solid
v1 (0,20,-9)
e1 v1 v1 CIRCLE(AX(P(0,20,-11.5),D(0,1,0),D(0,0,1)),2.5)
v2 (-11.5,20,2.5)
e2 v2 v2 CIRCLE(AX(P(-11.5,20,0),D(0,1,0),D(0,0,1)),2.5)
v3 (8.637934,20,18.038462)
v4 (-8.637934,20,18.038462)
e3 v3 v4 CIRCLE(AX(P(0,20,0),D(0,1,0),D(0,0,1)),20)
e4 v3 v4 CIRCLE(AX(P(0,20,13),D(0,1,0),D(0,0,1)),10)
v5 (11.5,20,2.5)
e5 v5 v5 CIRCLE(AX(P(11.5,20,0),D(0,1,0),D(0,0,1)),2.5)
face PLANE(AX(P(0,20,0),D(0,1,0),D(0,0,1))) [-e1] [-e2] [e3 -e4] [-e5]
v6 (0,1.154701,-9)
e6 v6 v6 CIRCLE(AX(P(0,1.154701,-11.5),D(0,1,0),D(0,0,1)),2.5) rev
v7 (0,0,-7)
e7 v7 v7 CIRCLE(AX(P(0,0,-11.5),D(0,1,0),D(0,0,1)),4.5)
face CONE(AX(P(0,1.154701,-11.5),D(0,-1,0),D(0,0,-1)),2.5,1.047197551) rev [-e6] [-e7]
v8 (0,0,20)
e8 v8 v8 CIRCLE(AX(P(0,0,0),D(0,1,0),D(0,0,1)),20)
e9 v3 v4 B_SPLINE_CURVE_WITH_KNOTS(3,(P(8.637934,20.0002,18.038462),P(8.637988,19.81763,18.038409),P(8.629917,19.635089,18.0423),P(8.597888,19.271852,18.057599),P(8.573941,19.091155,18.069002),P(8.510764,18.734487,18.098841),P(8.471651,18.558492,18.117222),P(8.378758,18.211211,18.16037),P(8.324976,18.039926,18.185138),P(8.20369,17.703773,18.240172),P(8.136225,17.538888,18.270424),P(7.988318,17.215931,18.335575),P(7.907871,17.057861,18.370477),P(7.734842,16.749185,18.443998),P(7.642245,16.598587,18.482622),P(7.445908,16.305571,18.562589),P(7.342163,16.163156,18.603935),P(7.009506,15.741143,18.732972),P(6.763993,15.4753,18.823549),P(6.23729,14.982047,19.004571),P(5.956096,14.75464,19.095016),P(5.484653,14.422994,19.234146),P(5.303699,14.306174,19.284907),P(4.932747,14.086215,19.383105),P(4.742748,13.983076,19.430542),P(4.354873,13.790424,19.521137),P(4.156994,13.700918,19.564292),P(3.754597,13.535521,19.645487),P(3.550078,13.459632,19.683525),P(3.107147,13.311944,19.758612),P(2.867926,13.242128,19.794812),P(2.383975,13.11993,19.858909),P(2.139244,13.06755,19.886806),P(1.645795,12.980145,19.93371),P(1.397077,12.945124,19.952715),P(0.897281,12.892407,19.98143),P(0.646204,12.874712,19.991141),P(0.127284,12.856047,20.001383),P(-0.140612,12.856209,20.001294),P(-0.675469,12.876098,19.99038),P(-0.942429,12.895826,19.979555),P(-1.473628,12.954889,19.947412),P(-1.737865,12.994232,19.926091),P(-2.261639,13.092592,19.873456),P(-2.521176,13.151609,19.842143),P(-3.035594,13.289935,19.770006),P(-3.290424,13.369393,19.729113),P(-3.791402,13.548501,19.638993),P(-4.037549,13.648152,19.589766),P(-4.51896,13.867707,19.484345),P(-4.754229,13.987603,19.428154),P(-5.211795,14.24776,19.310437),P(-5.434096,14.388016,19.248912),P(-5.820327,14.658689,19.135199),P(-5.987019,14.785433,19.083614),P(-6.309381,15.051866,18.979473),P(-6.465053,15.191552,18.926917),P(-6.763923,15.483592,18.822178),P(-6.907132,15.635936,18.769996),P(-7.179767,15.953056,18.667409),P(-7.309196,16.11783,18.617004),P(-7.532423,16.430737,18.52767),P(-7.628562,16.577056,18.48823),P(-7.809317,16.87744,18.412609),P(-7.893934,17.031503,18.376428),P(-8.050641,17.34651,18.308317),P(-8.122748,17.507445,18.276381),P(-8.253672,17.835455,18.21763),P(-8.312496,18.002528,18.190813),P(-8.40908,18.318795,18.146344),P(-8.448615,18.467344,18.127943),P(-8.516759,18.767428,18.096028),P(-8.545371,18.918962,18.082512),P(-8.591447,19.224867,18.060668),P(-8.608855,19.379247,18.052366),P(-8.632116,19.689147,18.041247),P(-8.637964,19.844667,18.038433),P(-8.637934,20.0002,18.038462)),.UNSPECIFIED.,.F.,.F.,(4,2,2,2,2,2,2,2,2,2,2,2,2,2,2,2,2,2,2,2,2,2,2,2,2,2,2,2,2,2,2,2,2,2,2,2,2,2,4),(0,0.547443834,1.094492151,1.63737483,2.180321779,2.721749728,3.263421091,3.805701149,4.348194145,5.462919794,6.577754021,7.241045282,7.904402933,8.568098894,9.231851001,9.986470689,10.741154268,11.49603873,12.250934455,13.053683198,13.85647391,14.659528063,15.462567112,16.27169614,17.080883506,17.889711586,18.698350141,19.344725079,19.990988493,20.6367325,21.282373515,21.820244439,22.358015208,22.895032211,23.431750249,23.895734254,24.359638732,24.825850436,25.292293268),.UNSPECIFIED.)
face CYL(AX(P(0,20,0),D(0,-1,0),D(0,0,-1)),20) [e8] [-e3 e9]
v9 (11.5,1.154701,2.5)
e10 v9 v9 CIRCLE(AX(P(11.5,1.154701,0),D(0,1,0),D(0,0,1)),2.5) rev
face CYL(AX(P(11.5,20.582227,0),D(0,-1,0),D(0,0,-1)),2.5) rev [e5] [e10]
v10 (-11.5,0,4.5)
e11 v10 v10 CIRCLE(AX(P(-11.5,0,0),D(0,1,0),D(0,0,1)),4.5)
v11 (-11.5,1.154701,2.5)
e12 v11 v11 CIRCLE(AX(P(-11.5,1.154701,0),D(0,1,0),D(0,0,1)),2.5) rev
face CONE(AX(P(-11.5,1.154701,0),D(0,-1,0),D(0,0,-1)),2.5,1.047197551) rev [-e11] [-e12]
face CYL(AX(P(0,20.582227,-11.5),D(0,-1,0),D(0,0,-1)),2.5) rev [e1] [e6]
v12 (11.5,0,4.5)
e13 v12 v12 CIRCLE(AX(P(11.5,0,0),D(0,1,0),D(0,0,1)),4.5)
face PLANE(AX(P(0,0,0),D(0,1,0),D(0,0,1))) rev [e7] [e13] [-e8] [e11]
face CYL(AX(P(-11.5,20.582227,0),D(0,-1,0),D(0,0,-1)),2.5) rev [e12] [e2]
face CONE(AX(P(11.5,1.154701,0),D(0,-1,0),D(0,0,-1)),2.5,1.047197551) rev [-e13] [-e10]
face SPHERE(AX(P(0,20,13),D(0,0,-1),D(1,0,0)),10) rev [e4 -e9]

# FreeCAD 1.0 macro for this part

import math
import FreeCAD as App
import Part
import Sketcher


def edges_at(feature, points):
    """Names of the edges that pass closest to the given points."""
    edges = feature.Shape.Edges
    near = lambda p: min(range(len(edges)), key=lambda i: edges[i].distToShape(Part.Vertex(*p))[0])
    return sorted({f"Edge{near(p) + 1}" for p in points})

doc = App.newDocument("Part")
body = doc.addObject("PartDesign::Body", "Body")

# Sketch on XZ plane
sketch1 = doc.addObject("Sketcher::SketchObject", "Sketch")
body.addObject(sketch1)
sketch1.AttachmentSupport = (doc.XZ_Plane, [""])
sketch1.MapMode = "FlatFace"
sketch1.addGeometry(Part.Circle(App.Vector(0, 0, 0), App.Vector(0, 0, 1), 20), False)
sketch1.addConstraint([
    Sketcher.Constraint("Coincident", 0, 3, -1, 1),
    Sketcher.Constraint("Diameter", 0, 40.0),
])
pad1 = doc.addObject("PartDesign::Pad", "Pad")
body.addObject(pad1)
pad1.Profile = sketch1
pad1.Length = 20
pad1.Reversed = True

# Sketch on XZ plane
sketch2 = doc.addObject("Sketcher::SketchObject", "Sketch001")
body.addObject(sketch2)
sketch2.AttachmentSupport = (doc.XZ_Plane, [""])
sketch2.MapMode = "FlatFace"
sketch2.AttachmentOffset = App.Placement(App.Vector(0, 0, -20), App.Rotation())
sketch2.addGeometry([
    Part.LineSegment(App.Vector(0, 23, 0), App.Vector(0, 3, 0)),
    Part.ArcOfCircle(Part.Circle(App.Vector(0, 13, 0), App.Vector(0, 0, 1), 10), math.radians(90), math.radians(270)),
], False)
sketch2.addConstraint([
    Sketcher.Constraint("Coincident", 0, 1, 1, 1),
    Sketcher.Constraint("Coincident", 1, 2, 0, 2),
    Sketcher.Constraint("Vertical", 0),
    Sketcher.Constraint("PointOnObject", 1, 3, -2),
    Sketcher.Constraint("PointOnObject", 0, 1, -2),
    Sketcher.Constraint("Radius", 1, 10.0),
    Sketcher.Constraint("DistanceY", -1, 1, 1, 3, 13.0),
])
groove = doc.addObject("PartDesign::Groove", "Groove")
body.addObject(groove)
groove.Profile = sketch2
groove.ReferenceAxis = (sketch2, ["V_Axis"])
groove.Angle = 360

# Sketch on XZ plane
sketch3 = doc.addObject("Sketcher::SketchObject", "Sketch002")
body.addObject(sketch3)
sketch3.AttachmentSupport = (doc.XZ_Plane, [""])
sketch3.MapMode = "FlatFace"
sketch3.addGeometry([
    Part.Circle(App.Vector(0, -11.5, 0), App.Vector(0, 0, 1), 2.5),
    Part.Circle(App.Vector(11.5, 0, 0), App.Vector(0, 0, 1), 2.5),
    Part.Circle(App.Vector(-11.5, 0, 0), App.Vector(0, 0, 1), 2.5),
], False)
sketch3.addConstraint([
    Sketcher.Constraint("Equal", 0, 1),
    Sketcher.Constraint("Equal", 1, 2),
    Sketcher.Constraint("Symmetric", 1, 3, 2, 3, -1, 1),
    Sketcher.Constraint("PointOnObject", 0, 3, -2),
    Sketcher.Constraint("PointOnObject", 1, 3, -1),
    Sketcher.Constraint("Diameter", 0, 5.0),
    Sketcher.Constraint("DistanceX", 2, 3, 1, 3, 23.0),
    Sketcher.Constraint("DistanceY", 0, 3, -1, 1, 11.5),
])
pocket1 = doc.addObject("PartDesign::Pocket", "Pocket")
body.addObject(pocket1)
pocket1.Profile = sketch3
pocket1.Type = "ThroughAll"
doc.recompute()

chamfer = doc.addObject("PartDesign::Chamfer", "Chamfer")
body.addObject(chamfer)
chamfer.Base = (pocket1, edges_at(pocket1, [(0, 0, -9), (11.5, 0, 2.5), (-11.5, 0, 2.5)]))
chamfer.ChamferType = "Two distances"
chamfer.Size = 2
chamfer.Size2 = 1.154701

doc.recompute()
